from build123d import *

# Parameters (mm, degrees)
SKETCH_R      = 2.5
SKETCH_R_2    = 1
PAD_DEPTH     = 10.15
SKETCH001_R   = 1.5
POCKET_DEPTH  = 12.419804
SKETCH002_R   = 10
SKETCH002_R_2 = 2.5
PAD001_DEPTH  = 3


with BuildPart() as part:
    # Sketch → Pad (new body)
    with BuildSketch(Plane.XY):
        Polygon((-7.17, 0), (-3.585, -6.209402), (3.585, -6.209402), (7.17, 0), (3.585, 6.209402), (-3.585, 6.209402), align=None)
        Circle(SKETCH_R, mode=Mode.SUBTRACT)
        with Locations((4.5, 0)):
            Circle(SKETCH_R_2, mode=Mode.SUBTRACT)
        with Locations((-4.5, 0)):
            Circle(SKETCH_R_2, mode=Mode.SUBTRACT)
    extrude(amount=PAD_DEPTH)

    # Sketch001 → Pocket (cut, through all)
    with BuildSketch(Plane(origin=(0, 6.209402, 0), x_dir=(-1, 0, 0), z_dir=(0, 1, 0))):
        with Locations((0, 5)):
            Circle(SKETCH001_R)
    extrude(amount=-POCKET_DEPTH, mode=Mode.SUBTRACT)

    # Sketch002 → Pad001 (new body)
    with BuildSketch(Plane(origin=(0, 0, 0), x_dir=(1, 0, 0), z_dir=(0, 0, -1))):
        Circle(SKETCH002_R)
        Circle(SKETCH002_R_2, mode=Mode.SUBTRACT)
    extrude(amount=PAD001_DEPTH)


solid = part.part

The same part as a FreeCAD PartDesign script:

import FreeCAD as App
import Part
import Sketcher

V = App.Vector
Q = App.Units.Quantity

doc = App.newDocument("Part")
body = doc.addObject("PartDesign::Body", "Body")

# Sketch on XY plane
sketch1 = body.newObject("Sketcher::SketchObject", "Sketch")
sketch1.AttachmentSupport = (doc.getObject("XY_Plane"), [""])
sketch1.MapMode = "FlatFace"
sketch1.addGeometry([
    Part.LineSegment(V(-7.17, 0, 0), V(-3.585, -6.209402, 0)),  # 0
    Part.LineSegment(V(-3.585, -6.209402, 0), V(3.585, -6.209402, 0)),  # 1
    Part.LineSegment(V(3.585, -6.209402, 0), V(7.17, 0, 0)),  # 2
    Part.LineSegment(V(7.17, 0, 0), V(3.585, 6.209402, 0)),  # 3
    Part.LineSegment(V(3.585, 6.209402, 0), V(-3.585, 6.209402, 0)),  # 4
    Part.LineSegment(V(-3.585, 6.209402, 0), V(-7.17, 0, 0)),  # 5
    Part.Circle(V(-4.5, 0, 0), V(0, 0, 1), 1),  # 6
    Part.Circle(V(0, 0, 0), V(0, 0, 1), 2.5),  # 7
    Part.Circle(V(4.5, 0, 0), V(0, 0, 1), 1),  # 8
], False)
sketch1.addConstraint([
    Sketcher.Constraint("Coincident", 0, 2, 1, 1),
    Sketcher.Constraint("Coincident", 1, 2, 2, 1),
    Sketcher.Constraint("Coincident", 2, 2, 3, 1),
    Sketcher.Constraint("Coincident", 3, 2, 4, 1),
    Sketcher.Constraint("Coincident", 4, 2, 5, 1),
    Sketcher.Constraint("Coincident", 5, 2, 0, 1),
    Sketcher.Constraint("Horizontal", 1),
    Sketcher.Constraint("Horizontal", 4),
    Sketcher.Constraint("Coincident", 7, 3, -1, 1),
    Sketcher.Constraint("Equal", 6, 8),
    Sketcher.Constraint("Symmetric", 6, 3, 8, 3, -1, 1),
    Sketcher.Constraint("Symmetric", 0, 2, 3, 2, -1, 1),
    Sketcher.Constraint("Symmetric", 2, 2, 5, 2, -1, 1),
    Sketcher.Constraint("PointOnObject", 6, 3, -1),
    Sketcher.Constraint("PointOnObject", 2, 2, -1),
    Sketcher.Constraint("Parallel", 2, 5),
    Sketcher.Constraint("Vertical", 1, 2, 3, 2),
    Sketcher.Constraint("Diameter", 6, 2.0),
    Sketcher.Constraint("Diameter", 7, 5.0),
    Sketcher.Constraint("Angle", 0, Q("-59.999999 deg")),
    Sketcher.Constraint("DistanceX", 6, 3, 8, 3, 9.0),
    Sketcher.Constraint("DistanceX", 1, 1, 1, 2, 7.17),
    Sketcher.Constraint("Distance", 0, 7.17),
])
pad1 = body.newObject("PartDesign::Pad", "Pad")
pad1.Profile = sketch1
pad1.Length = 10.15

# Sketch on XZ plane
sketch2 = body.newObject("Sketcher::SketchObject", "Sketch001")
sketch2.AttachmentSupport = (doc.getObject("XZ_Plane"), [""])
sketch2.MapMode = "FlatFace"
sketch2.AttachmentOffset = App.Placement(V(0, 0, -6.209402), App.Rotation())
sketch2.addGeometry(Part.Circle(V(0, 5, 0), V(0, 0, 1), 1.5), False)
sketch2.addConstraint([
    Sketcher.Constraint("PointOnObject", 0, 3, -2),
    Sketcher.Constraint("Diameter", 0, 3.0),
    Sketcher.Constraint("DistanceY", -1, 1, 0, 3, 5.0),
])
pocket1 = body.newObject("PartDesign::Pocket", "Pocket")
pocket1.Profile = sketch2
pocket1.Type = "ThroughAll"
pocket1.Reversed = True

# Sketch on XY plane
sketch3 = body.newObject("Sketcher::SketchObject", "Sketch002")
sketch3.AttachmentSupport = (doc.getObject("XY_Plane"), [""])
sketch3.MapMode = "FlatFace"
sketch3.addGeometry([
    Part.Circle(V(0, 0, 0), V(0, 0, 1), 10),
    Part.Circle(V(0, 0, 0), V(0, 0, 1), 2.5),
], False)
sketch3.addConstraint([
    Sketcher.Constraint("Coincident", 0, 3, -1, 1),
    Sketcher.Constraint("Coincident", 1, 3, -1, 1),
    Sketcher.Constraint("Diameter", 0, 20.0),
    Sketcher.Constraint("Diameter", 1, 5.0),
])
pad2 = body.newObject("PartDesign::Pad", "Pad001")
pad2.Profile = sketch3
pad2.Length = 3
pad2.Reversed = True

doc.recompute()
